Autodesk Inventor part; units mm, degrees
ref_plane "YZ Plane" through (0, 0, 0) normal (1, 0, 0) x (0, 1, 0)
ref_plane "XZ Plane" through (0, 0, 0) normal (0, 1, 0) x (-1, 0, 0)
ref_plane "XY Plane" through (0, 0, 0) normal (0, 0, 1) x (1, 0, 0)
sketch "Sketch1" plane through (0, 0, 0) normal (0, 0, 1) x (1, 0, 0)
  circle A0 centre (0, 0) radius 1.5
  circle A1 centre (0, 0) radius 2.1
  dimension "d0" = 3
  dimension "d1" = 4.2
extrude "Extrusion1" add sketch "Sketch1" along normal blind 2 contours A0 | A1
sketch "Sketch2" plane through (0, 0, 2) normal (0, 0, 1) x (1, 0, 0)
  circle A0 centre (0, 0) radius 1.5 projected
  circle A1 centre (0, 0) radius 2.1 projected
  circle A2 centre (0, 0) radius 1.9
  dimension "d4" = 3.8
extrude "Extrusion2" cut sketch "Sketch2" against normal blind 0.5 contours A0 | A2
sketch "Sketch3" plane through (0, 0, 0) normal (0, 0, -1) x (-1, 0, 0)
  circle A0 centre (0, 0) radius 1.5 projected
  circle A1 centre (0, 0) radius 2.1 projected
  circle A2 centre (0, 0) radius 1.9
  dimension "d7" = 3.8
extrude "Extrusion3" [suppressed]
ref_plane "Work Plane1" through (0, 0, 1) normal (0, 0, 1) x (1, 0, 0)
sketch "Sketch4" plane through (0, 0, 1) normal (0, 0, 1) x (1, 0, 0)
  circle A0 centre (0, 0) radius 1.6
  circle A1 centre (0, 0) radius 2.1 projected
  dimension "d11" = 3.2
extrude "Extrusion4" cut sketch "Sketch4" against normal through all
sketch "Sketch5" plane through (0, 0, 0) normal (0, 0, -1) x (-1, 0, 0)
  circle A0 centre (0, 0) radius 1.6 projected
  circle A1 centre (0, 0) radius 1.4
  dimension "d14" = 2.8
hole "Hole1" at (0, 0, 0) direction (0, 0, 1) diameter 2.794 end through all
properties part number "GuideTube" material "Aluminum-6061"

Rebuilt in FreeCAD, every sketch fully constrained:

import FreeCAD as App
import Part
import Sketcher

doc = App.newDocument("Part")
body = doc.addObject("PartDesign::Body", "Body")

sketch1 = doc.addObject("Sketcher::SketchObject", "Sketch")
body.addObject(sketch1)
sketch1.AttachmentSupport = (doc.XY_Plane, [""])
sketch1.MapMode = "FlatFace"
sketch1.addGeometry(Part.Circle(App.Vector(0, 0, 0), App.Vector(0, 0, 1), 2.1), False)
sketch1.addConstraint(Sketcher.Constraint("Coincident", 0, 3, -1, 1))
sketch1.addConstraint(Sketcher.Constraint("Diameter", 0, 4.2))
pad1 = doc.addObject("PartDesign::Pad", "Pad")
body.addObject(pad1)
pad1.Profile = sketch1
pad1.Length = 2

sketch2 = doc.addObject("Sketcher::SketchObject", "Sketch001")
body.addObject(sketch2)
sketch2.AttachmentSupport = (doc.XY_Plane, [""])
sketch2.MapMode = "FlatFace"
sketch2.AttachmentOffset = App.Placement(App.Vector(0, 0, 2), App.Rotation())
sketch2.addGeometry(Part.Circle(App.Vector(0, 0, 0), App.Vector(0, 0, 1), 1.9), False)
sketch2.addConstraint(Sketcher.Constraint("Coincident", 0, 3, -1, 1))
sketch2.addConstraint(Sketcher.Constraint("Diameter", 0, 3.8))
pocket1 = doc.addObject("PartDesign::Pocket", "Pocket")
body.addObject(pocket1)
pocket1.Profile = sketch2
pocket1.Length = 0.5

sketch3 = doc.addObject("Sketcher::SketchObject", "Sketch002")
body.addObject(sketch3)
sketch3.AttachmentSupport = (doc.XY_Plane, [""])
sketch3.MapMode = "FlatFace"
sketch3.AttachmentOffset = App.Placement(App.Vector(0, 0, 1), App.Rotation())
sketch3.addGeometry(Part.Circle(App.Vector(0, 0, 0), App.Vector(0, 0, 1), 2.1), False)
sketch3.addGeometry(Part.Circle(App.Vector(0, 0, 0), App.Vector(0, 0, 1), 1.6), False)
sketch3.addConstraint(Sketcher.Constraint("Coincident", 0, 3, -1, 1))
sketch3.addConstraint(Sketcher.Constraint("Coincident", 1, 3, -1, 1))
sketch3.addConstraint(Sketcher.Constraint("Diameter", 1, 3.2))
sketch3.addConstraint(Sketcher.Constraint("Diameter", 0, 4.2))
pocket2 = doc.addObject("PartDesign::Pocket", "Pocket001")
body.addObject(pocket2)
pocket2.Profile = sketch3
pocket2.Type = "ThroughAll"

sketch4 = doc.addObject("Sketcher::SketchObject", "Sketch003")
body.addObject(sketch4)
sketch4.AttachmentSupport = (doc.XY_Plane, [""])
sketch4.MapMode = "FlatFace"
sketch4.addGeometry(Part.Circle(App.Vector(0, 0, 0), App.Vector(0, 0, 1), 1.397), False)
sketch4.addConstraint(Sketcher.Constraint("Coincident", 0, 3, -1, 1))
sketch4.addConstraint(Sketcher.Constraint("Diameter", 0, 2.794))
doc.recompute()
hole = doc.addObject("PartDesign::Hole", "Hole")
body.addObject(hole)
hole.Profile = sketch4
hole.ThreadType = "None"
hole.Diameter = 2.794
hole.DepthType = "ThroughAll"
hole.Reversed = True

doc.recompute()
